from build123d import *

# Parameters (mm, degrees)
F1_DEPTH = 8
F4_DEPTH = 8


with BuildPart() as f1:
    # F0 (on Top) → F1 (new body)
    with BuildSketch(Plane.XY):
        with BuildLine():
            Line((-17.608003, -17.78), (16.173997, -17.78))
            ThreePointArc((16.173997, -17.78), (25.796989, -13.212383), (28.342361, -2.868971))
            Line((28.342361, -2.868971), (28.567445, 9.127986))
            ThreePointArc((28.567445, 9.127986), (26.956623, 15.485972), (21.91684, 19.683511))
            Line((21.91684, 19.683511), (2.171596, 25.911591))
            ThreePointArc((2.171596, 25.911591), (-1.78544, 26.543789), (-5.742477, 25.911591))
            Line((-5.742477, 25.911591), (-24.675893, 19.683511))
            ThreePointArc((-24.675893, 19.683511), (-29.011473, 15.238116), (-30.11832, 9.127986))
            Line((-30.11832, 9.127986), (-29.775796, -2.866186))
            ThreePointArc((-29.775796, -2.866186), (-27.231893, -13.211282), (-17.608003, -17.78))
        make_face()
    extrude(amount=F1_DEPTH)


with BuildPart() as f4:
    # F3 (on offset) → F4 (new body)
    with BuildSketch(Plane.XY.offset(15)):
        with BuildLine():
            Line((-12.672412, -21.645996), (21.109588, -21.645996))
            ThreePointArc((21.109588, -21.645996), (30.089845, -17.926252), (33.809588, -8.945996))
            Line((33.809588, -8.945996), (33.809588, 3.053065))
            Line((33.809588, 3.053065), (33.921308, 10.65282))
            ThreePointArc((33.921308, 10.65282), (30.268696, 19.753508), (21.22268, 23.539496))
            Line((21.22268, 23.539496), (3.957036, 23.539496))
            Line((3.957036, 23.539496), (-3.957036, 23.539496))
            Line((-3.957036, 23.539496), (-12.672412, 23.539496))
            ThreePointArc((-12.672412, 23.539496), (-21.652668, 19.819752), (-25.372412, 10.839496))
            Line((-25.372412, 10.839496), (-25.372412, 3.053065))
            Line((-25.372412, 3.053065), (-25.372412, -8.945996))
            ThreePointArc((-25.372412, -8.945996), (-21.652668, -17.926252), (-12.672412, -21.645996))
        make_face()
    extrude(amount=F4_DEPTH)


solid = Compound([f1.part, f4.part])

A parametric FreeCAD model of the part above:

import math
import FreeCAD as App
import Part
import Sketcher

V = App.Vector
Q = App.Units.Quantity

doc = App.newDocument("Part")
body = doc.addObject("PartDesign::Body", "Body")

# Sketch on XY plane
sketch1 = doc.addObject("Sketcher::SketchObject", "Sketch")
body.addObject(sketch1)
sketch1.AttachmentSupport = (doc.XY_Plane, [""])
sketch1.MapMode = "FlatFace"
sketch1.addGeometry(Part.LineSegment(V(-18, -18, 0), V(16, -18, 0)), False)
sketch1.addGeometry(Part.ArcOfCircle(Part.Circle(V(16, -5, 0), V(0, 0, 1), 12), math.radians(-90), math.radians(12)), False)
sketch1.addGeometry(Part.LineSegment(V(28, -3, 0), V(29, 9, 0)), False)
sketch1.addGeometry(Part.ArcOfCircle(Part.Circle(V(18, 10, 0), V(0, 0, 1), 11), math.radians(-4), math.radians(68)), False)
sketch1.addGeometry(Part.LineSegment(V(22, 20, 0), V(2, 26, 0)), False)
sketch1.addGeometry(Part.ArcOfCircle(Part.Circle(V(-2, 14, 0), V(0, 0, 1), 13), math.radians(72), math.radians(108)), False)
sketch1.addGeometry(Part.LineSegment(V(-6, 26, 0), V(-25, 20, 0)), False)
sketch1.addGeometry(Part.ArcOfCircle(Part.Circle(V(-20, 10, 0), V(0, 0, 1), 11), math.radians(119), math.radians(187)), False)
sketch1.addGeometry(Part.LineSegment(V(-30, 9, 0), V(-30, -3, 0)), False)
sketch1.addGeometry(Part.ArcOfCircle(Part.Circle(V(-18, -5, 0), V(0, 0, 1), 12), math.radians(168), math.radians(270)), False)
sketch1.addConstraint(Sketcher.Constraint("Tangent", 0, 2, 1, 1))
sketch1.addConstraint(Sketcher.Constraint("Coincident", 1, 2, 2, 1))
sketch1.addConstraint(Sketcher.Constraint("Coincident", 2, 2, 3, 1))
sketch1.addConstraint(Sketcher.Constraint("Coincident", 3, 2, 4, 1))
sketch1.addConstraint(Sketcher.Constraint("Coincident", 4, 2, 5, 1))
sketch1.addConstraint(Sketcher.Constraint("Coincident", 5, 2, 6, 1))
sketch1.addConstraint(Sketcher.Constraint("Coincident", 6, 2, 7, 1))
sketch1.addConstraint(Sketcher.Constraint("Coincident", 7, 2, 8, 1))
sketch1.addConstraint(Sketcher.Constraint("Coincident", 8, 2, 9, 1))
sketch1.addConstraint(Sketcher.Constraint("Tangent", 9, 2, 0, 1))
sketch1.addConstraint(Sketcher.Constraint("Horizontal", 0))
sketch1.addConstraint(Sketcher.Constraint("Equal", 1, 9))
sketch1.addConstraint(Sketcher.Constraint("Horizontal", 4, 2, 5, 2))
sketch1.addConstraint(Sketcher.Constraint("Horizontal", 3, 2, 6, 2))
sketch1.addConstraint(Sketcher.Constraint("Horizontal", 2, 2, 7, 2))
sketch1.addConstraint(Sketcher.Constraint("Radius", 1, Q("0.489 in")))
sketch1.addConstraint(Sketcher.Constraint("DistanceX", 0, 1, 0, 2, Q("1.33 in")))
sketch1.addConstraint(Sketcher.Constraint("DistanceY", 0, 2, -1, 1, Q("0.7 in")))
sketch1.addConstraint(Sketcher.Constraint("Radius", 3, 10.614535))
sketch1.addConstraint(Sketcher.Constraint("Radius", 5, 12.699987))
sketch1.addConstraint(Sketcher.Constraint("Radius", 7, 10.614543))
sketch1.addConstraint(Sketcher.Constraint("DistanceY", 3, 2, 4, 2, Q("0.2452 in")))
sketch1.addConstraint(Sketcher.Constraint("DistanceX", 5, 3, 1, 2, 30.127802))
sketch1.addConstraint(Sketcher.Constraint("DistanceX", 4, 2, 3, 3, 15.804398))
sketch1.addConstraint(Sketcher.Constraint("Distance", 2, 11.999068))
sketch1.addConstraint(Sketcher.Constraint("Distance", 8, 11.999062))
sketch1.addConstraint(Sketcher.Constraint("DistanceX", 5, 3, -1, 1, 1.78544))
sketch1.addConstraint(Sketcher.Constraint("DistanceY", 1, 2, -1, 1, 2.868971))
sketch1.addConstraint(Sketcher.Constraint("DistanceX", -1, 1, 3, 2, 21.91684))
sketch1.addConstraint(Sketcher.Constraint("DistanceY", -1, 1, 3, 2, 19.683511))
sketch1.addConstraint(Sketcher.Constraint("DistanceX", 7, 2, -1, 1, 30.11832))
sketch1.addConstraint(Sketcher.Constraint("DistanceY", 7, 3, 5, 3, 3.470029))
sketch1.addConstraint(Sketcher.Constraint("DistanceX", 7, 3, 3, 3, 37.553131))
pad1 = doc.addObject("PartDesign::Pad", "Pad")
body.addObject(pad1)
pad1.Profile = sketch1
pad1.Length = 8
body2 = doc.addObject("PartDesign::Body", "Body001")

# Sketch on XY plane
sketch2 = doc.addObject("Sketcher::SketchObject", "Sketch001")
body2.addObject(sketch2)
sketch2.AttachmentSupport = (doc.getObject("XY_Plane001"), [""])
sketch2.MapMode = "FlatFace"
sketch2.AttachmentOffset = App.Placement(V(0, 0, 15), App.Rotation())
sketch2.addGeometry(Part.LineSegment(V(-13, -22, 0), V(21, -22, 0)), False)
sketch2.addGeometry(Part.ArcOfCircle(Part.Circle(V(21, -9, 0), V(0, 0, 1), 13), math.radians(-90), math.radians(0)), False)
sketch2.addGeometry(Part.LineSegment(V(34, -9, 0), V(34, 3, 0)), False)
sketch2.addGeometry(Part.LineSegment(V(34, 3, 0), V(34, 11, 0)), False)
sketch2.addGeometry(Part.ArcOfCircle(Part.Circle(V(21, 11, 0), V(0, 0, 1), 13), math.radians(-1), math.radians(90)), False)
sketch2.addGeometry(Part.LineSegment(V(21, 24, 0), V(-13, 24, 0)), False)
sketch2.addGeometry(Part.ArcOfCircle(Part.Circle(V(-13, 11, 0), V(0, 0, 1), 13), math.radians(90), math.radians(180)), False)
sketch2.addGeometry(Part.LineSegment(V(-25, 11, 0), V(-25, -9, 0)), False)
sketch2.addGeometry(Part.ArcOfCircle(Part.Circle(V(-13, -9, 0), V(0, 0, 1), 13), math.radians(-180), math.radians(-90)), False)
sketch2.addConstraint(Sketcher.Constraint("Tangent", 0, 2, 1, 1))
sketch2.addConstraint(Sketcher.Constraint("Tangent", 1, 2, 2, 1))
sketch2.addConstraint(Sketcher.Constraint("Coincident", 2, 2, 3, 1))
sketch2.addConstraint(Sketcher.Constraint("Tangent", 3, 2, 4, 1))
sketch2.addConstraint(Sketcher.Constraint("Tangent", 4, 2, 5, 1))
sketch2.addConstraint(Sketcher.Constraint("Tangent", 5, 2, 6, 1))
sketch2.addConstraint(Sketcher.Constraint("Tangent", 6, 2, 7, 1))
sketch2.addConstraint(Sketcher.Constraint("Tangent", 7, 2, 8, 1))
sketch2.addConstraint(Sketcher.Constraint("Tangent", 8, 2, 0, 1))
sketch2.addConstraint(Sketcher.Constraint("Horizontal", 0))
sketch2.addConstraint(Sketcher.Constraint("Vertical", 2))
sketch2.addConstraint(Sketcher.Constraint("Horizontal", 5))
sketch2.addConstraint(Sketcher.Constraint("Vertical", 7))
sketch2.addConstraint(Sketcher.Constraint("Equal", 1, 4))
sketch2.addConstraint(Sketcher.Constraint("Equal", 4, 6))
sketch2.addConstraint(Sketcher.Constraint("Equal", 6, 8))
sketch2.addConstraint(Sketcher.Constraint("Radius", 1, Q("0.4999999 in")))
sketch2.addConstraint(Sketcher.Constraint("DistanceX", 0, 1, 0, 2, Q("1.33 in")))
sketch2.addConstraint(Sketcher.Constraint("DistanceX", 5, 2, 5, 1, 33.895092))
sketch2.addConstraint(Sketcher.Constraint("DistanceY", 2, 1, 2, 2, 11.999061))
sketch2.addConstraint(Sketcher.Constraint("DistanceY", 7, 2, 7, 1, 19.785492))
sketch2.addConstraint(Sketcher.Constraint("DistanceX", -1, 1, 1, 3, 21.109589))
sketch2.addConstraint(Sketcher.Constraint("DistanceY", -1, 1, 3, 2, 10.65282))
pad2 = doc.addObject("PartDesign::Pad", "Pad001")
body2.addObject(pad2)
pad2.Profile = sketch2
pad2.Length = 8

doc.recompute()
